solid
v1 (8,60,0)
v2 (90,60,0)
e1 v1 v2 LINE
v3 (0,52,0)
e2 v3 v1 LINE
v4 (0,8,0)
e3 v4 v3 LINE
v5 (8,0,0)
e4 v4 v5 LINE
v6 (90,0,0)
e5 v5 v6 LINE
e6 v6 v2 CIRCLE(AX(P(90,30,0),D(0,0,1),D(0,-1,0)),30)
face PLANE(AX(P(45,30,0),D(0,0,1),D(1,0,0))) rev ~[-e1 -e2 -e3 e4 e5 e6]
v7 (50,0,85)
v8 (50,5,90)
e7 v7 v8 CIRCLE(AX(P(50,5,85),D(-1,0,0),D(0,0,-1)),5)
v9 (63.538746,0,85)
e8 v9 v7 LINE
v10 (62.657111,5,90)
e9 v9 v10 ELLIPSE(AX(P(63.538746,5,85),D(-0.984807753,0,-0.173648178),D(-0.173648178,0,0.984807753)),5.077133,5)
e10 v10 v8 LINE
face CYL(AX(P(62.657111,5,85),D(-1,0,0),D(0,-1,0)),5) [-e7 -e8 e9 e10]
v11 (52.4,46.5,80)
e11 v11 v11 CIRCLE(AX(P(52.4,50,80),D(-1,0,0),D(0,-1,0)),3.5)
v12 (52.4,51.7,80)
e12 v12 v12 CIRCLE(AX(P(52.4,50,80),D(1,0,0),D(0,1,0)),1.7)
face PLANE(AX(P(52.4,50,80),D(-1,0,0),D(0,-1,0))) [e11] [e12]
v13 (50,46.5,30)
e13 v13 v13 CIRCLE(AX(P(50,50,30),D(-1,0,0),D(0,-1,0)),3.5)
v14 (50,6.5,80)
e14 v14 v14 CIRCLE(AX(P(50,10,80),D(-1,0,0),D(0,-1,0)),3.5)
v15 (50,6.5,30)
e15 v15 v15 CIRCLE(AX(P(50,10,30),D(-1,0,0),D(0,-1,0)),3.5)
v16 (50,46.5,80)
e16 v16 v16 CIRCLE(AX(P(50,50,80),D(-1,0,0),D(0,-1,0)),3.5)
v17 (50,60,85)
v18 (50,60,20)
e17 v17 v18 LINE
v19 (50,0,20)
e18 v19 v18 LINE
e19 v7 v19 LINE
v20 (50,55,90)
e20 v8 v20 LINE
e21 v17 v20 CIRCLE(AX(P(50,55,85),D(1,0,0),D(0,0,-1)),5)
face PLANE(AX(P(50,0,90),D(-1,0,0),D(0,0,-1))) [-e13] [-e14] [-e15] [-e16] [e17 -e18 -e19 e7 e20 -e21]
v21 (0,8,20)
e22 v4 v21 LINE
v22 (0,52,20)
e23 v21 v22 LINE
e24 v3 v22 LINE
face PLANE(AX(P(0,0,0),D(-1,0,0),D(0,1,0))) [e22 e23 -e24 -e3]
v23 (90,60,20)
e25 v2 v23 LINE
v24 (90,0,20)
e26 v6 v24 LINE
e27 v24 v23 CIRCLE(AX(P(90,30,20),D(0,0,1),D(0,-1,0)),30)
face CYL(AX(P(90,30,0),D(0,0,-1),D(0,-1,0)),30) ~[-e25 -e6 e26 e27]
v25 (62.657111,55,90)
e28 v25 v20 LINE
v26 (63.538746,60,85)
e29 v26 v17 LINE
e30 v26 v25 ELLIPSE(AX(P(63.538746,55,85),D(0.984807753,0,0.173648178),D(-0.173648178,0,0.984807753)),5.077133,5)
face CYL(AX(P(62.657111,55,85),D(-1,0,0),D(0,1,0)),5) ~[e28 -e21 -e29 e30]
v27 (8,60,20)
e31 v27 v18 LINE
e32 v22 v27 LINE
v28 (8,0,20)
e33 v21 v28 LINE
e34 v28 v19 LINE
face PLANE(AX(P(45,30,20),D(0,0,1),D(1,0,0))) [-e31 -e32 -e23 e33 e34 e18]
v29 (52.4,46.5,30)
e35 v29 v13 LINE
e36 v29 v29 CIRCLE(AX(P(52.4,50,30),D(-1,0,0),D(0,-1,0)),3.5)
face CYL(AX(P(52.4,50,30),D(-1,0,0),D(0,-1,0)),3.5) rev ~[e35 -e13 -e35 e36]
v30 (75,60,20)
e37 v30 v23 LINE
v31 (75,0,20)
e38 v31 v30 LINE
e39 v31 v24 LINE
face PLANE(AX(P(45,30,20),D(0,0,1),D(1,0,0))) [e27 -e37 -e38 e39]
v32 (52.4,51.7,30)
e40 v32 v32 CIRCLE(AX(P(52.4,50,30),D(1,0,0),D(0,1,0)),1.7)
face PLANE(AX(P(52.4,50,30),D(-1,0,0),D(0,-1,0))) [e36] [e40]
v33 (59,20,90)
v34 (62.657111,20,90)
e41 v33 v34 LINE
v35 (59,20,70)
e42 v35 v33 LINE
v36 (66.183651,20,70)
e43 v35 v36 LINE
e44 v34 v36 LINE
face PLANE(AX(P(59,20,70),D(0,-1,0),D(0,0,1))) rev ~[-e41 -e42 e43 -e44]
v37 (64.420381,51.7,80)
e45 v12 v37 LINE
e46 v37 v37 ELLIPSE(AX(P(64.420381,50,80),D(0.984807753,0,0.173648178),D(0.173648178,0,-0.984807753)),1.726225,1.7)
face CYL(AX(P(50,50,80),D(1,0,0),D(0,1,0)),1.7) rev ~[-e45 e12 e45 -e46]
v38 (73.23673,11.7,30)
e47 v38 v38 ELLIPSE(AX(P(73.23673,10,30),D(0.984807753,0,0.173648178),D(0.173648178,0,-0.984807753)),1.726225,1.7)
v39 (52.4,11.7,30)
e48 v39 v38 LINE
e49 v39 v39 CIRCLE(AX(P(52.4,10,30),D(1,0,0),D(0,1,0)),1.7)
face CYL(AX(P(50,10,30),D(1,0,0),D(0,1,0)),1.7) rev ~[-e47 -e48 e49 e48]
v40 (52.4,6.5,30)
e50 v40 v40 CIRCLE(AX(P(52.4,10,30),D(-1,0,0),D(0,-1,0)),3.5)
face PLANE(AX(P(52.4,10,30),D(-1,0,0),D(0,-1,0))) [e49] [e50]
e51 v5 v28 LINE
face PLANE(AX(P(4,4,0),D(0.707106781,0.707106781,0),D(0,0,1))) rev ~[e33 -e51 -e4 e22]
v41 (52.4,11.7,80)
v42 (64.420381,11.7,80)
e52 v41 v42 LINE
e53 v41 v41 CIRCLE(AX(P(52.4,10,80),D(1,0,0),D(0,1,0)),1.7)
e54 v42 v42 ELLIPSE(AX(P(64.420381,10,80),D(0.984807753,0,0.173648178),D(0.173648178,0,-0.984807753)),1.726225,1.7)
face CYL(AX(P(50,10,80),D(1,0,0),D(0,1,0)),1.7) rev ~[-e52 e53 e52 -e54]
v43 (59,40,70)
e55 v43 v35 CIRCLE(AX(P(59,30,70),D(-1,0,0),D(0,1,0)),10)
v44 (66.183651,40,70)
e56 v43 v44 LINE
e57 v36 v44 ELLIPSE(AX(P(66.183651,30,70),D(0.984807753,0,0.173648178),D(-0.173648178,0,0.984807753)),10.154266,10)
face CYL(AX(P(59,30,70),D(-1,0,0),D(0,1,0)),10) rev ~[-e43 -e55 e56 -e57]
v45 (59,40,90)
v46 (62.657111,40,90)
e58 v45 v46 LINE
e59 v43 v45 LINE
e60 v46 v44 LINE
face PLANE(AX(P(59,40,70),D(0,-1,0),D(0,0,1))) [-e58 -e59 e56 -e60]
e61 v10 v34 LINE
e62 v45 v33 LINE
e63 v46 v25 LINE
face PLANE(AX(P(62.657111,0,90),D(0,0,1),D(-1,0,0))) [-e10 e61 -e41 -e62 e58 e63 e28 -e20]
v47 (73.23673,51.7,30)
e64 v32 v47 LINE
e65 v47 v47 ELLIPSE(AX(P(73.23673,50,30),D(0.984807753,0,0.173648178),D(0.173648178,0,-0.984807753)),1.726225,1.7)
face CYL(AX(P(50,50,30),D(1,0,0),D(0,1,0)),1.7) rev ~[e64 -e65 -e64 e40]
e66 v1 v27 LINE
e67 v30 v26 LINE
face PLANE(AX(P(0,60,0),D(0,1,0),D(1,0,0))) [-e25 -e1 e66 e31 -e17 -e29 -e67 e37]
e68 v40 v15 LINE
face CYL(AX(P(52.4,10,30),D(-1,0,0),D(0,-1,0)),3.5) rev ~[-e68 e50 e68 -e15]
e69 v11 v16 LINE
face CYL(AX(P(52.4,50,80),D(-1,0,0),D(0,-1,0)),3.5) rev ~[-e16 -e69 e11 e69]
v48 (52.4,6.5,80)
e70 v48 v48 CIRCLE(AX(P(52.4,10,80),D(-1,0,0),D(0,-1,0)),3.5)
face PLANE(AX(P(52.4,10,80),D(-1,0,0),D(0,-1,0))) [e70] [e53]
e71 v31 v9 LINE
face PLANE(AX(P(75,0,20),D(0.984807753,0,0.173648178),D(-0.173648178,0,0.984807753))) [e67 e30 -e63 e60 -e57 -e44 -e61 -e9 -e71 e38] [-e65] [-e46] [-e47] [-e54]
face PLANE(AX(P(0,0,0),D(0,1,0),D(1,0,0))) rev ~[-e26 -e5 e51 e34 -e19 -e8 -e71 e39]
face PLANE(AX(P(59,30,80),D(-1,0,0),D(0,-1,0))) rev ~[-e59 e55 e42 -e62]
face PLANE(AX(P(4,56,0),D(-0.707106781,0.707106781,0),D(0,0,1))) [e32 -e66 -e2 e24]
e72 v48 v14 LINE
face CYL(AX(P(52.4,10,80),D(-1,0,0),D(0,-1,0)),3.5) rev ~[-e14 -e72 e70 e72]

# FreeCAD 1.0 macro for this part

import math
import FreeCAD as App
import Part
import Sketcher
Q = App.Units.Quantity


def edges_at(feature, points):
    """Names of the edges that pass closest to the given points."""
    edges = feature.Shape.Edges
    near = lambda p: min(range(len(edges)), key=lambda i: edges[i].distToShape(Part.Vertex(*p))[0])
    return sorted({f"Edge{near(p) + 1}" for p in points})

doc = App.newDocument("Part")
body = doc.addObject("PartDesign::Body", "Body")

# Sketch on XY plane
sketch1 = body.newObject("Sketcher::SketchObject", "Sketch")
sketch1.AttachmentSupport = (doc.getObject("XY_Plane"), [""])
sketch1.MapMode = "FlatFace"
sketch1.addGeometry(Part.LineSegment(App.Vector(0, 60, 0), App.Vector(0, 0, 0)), False)
sketch1.addGeometry(Part.LineSegment(App.Vector(0, 0, 0), App.Vector(90, 0, 0)), False)
sketch1.addGeometry(Part.ArcOfCircle(Part.Circle(App.Vector(90, 30, 0), App.Vector(0, 0, 1), 30), math.radians(-90), math.radians(90)), False)
sketch1.addGeometry(Part.LineSegment(App.Vector(90, 60, 0), App.Vector(0, 60, 0)), False)
sketch1.addConstraint(Sketcher.Constraint("Coincident", 0, 2, 1, 1))
sketch1.addConstraint(Sketcher.Constraint("Tangent", 1, 2, 2, 1))
sketch1.addConstraint(Sketcher.Constraint("Tangent", 2, 2, 3, 1))
sketch1.addConstraint(Sketcher.Constraint("Coincident", 3, 2, 0, 1))
sketch1.addConstraint(Sketcher.Constraint("Vertical", 0))
sketch1.addConstraint(Sketcher.Constraint("Horizontal", 1))
sketch1.addConstraint(Sketcher.Constraint("Horizontal", 3))
sketch1.addConstraint(Sketcher.Constraint("Coincident", 0, 2, -1, 1))
sketch1.addConstraint(Sketcher.Constraint("Radius", 2, Q("30 mm")))
sketch1.addConstraint(Sketcher.Constraint("DistanceX", 1, 1, 1, 2, Q("90 mm")))
pad1 = body.newObject("PartDesign::Pad", "Pad")
pad1.Profile = sketch1
pad1.Length = 20
doc.recompute()

chamfer = body.newObject("PartDesign::Chamfer", "Chamfer")
chamfer.Base = (pad1, edges_at(pad1, [(0, 0, 10), (0, 60, 10)]))
chamfer.Size = 8

# Sketch on XZ plane
sketch2 = body.newObject("Sketcher::SketchObject", "Sketch001")
sketch2.AttachmentSupport = (doc.getObject("XZ_Plane"), [""])
sketch2.MapMode = "FlatFace"
sketch2.addGeometry(Part.LineSegment(App.Vector(50, 90, 0), App.Vector(50, 20, 0)), False)
sketch2.addGeometry(Part.LineSegment(App.Vector(50, 20, 0), App.Vector(75, 20, 0)), False)
sketch2.addGeometry(Part.LineSegment(App.Vector(75, 20, 0), App.Vector(63, 90, 0)), False)
sketch2.addGeometry(Part.LineSegment(App.Vector(63, 90, 0), App.Vector(50, 90, 0)), False)
sketch2.addConstraint(Sketcher.Constraint("Coincident", 0, 2, 1, 1))
sketch2.addConstraint(Sketcher.Constraint("Coincident", 1, 2, 2, 1))
sketch2.addConstraint(Sketcher.Constraint("Coincident", 2, 2, 3, 1))
sketch2.addConstraint(Sketcher.Constraint("Coincident", 3, 2, 0, 1))
sketch2.addConstraint(Sketcher.Constraint("Vertical", 0))
sketch2.addConstraint(Sketcher.Constraint("Horizontal", 1))
sketch2.addConstraint(Sketcher.Constraint("Horizontal", 3))
sketch2.addConstraint(Sketcher.Constraint("DistanceX", 1, 1, 1, 2, Q("25 mm")))
sketch2.addConstraint(Sketcher.Constraint("DistanceY", 0, 2, 0, 1, Q("70 mm")))
sketch2.addConstraint(Sketcher.Constraint("Angle", 2, Q("100 deg")))
sketch2.addConstraint(Sketcher.Constraint("DistanceX", -1, 1, 0, 2, Q("50 mm")))
sketch2.addConstraint(Sketcher.Constraint("DistanceY", -1, 1, 0, 2, Q("20 mm")))
pad2 = body.newObject("PartDesign::Pad", "Pad001")
pad2.Profile = sketch2
pad2.Length = 60
pad2.Reversed = True
doc.recompute()

fillet = body.newObject("PartDesign::Fillet", "Fillet")
fillet.Base = (pad2, edges_at(pad2, [(56.329, 0, 90), (56.329, 60, 90)]))
fillet.Radius = 5

# Sketch on YZ plane
sketch3 = body.newObject("Sketcher::SketchObject", "Sketch002")
sketch3.AttachmentSupport = (doc.getObject("YZ_Plane"), [""])
sketch3.MapMode = "FlatFace"
sketch3.AttachmentOffset = App.Placement(App.Vector(0, 0, 50), App.Rotation())
sketch3.addGeometry(Part.Circle(App.Vector(50, 80, 0), App.Vector(0, 0, 1), 1.7), False)
sketch3.addGeometry(Part.Circle(App.Vector(50, 30, 0), App.Vector(0, 0, 1), 1.7), False)
sketch3.addGeometry(Part.Circle(App.Vector(10, 30, 0), App.Vector(0, 0, 1), 1.7), False)
sketch3.addGeometry(Part.Circle(App.Vector(10, 80, 0), App.Vector(0, 0, 1), 1.7), False)
sketch3.addConstraint(Sketcher.Constraint("Equal", 0, 1))
sketch3.addConstraint(Sketcher.Constraint("Equal", 1, 2))
sketch3.addConstraint(Sketcher.Constraint("Equal", 2, 3))
sketch3.addConstraint(Sketcher.Constraint("Horizontal", 1, 3, 2, 3))
sketch3.addConstraint(Sketcher.Constraint("Horizontal", 0, 3, 3, 3))
sketch3.addConstraint(Sketcher.Constraint("Vertical", 0, 3, 1, 3))
sketch3.addConstraint(Sketcher.Constraint("Vertical", 2, 3, 3, 3))
sketch3.addConstraint(Sketcher.Constraint("Diameter", 0, Q("3.4 mm")))
sketch3.addConstraint(Sketcher.Constraint("DistanceX", -1, 1, 0, 3, Q("50 mm")))
sketch3.addConstraint(Sketcher.Constraint("DistanceY", -1, 1, 0, 3, Q("80 mm")))
sketch3.addConstraint(Sketcher.Constraint("DistanceY", -1, 1, 1, 3, Q("30 mm")))
sketch3.addConstraint(Sketcher.Constraint("DistanceX", -1, 1, 2, 3, Q("10 mm")))
doc.recompute()
hole = body.newObject("PartDesign::Hole", "Hole")
hole.Profile = sketch3
hole.ThreadType = "None"
hole.Diameter = 3.4
hole.DepthType = "ThroughAll"
hole.HoleCutType = "Counterbore"
hole.HoleCutDiameter = 7
hole.HoleCutDepth = 2.4
hole.Reversed = True

# Sketch on YZ plane
sketch4 = body.newObject("Sketcher::SketchObject", "Sketch003")
sketch4.AttachmentSupport = (doc.getObject("YZ_Plane"), [""])
sketch4.MapMode = "FlatFace"
sketch4.AttachmentOffset = App.Placement(App.Vector(0, 0, 59), App.Rotation())
sketch4.addGeometry(Part.LineSegment(App.Vector(40, 90, 0), App.Vector(40, 70, 0)), False)
sketch4.addGeometry(Part.ArcOfCircle(Part.Circle(App.Vector(30, 70, 0), App.Vector(0, 0, 1), 10), math.radians(180), math.radians(360)), False)
sketch4.addGeometry(Part.LineSegment(App.Vector(20, 70, 0), App.Vector(20, 90, 0)), False)
sketch4.addGeometry(Part.LineSegment(App.Vector(20, 90, 0), App.Vector(40, 90, 0)), False)
sketch4.addConstraint(Sketcher.Constraint("Tangent", 0, 2, 1, 2))
sketch4.addConstraint(Sketcher.Constraint("Tangent", 1, 1, 2, 1))
sketch4.addConstraint(Sketcher.Constraint("Coincident", 2, 2, 3, 1))
sketch4.addConstraint(Sketcher.Constraint("Coincident", 3, 2, 0, 1))
sketch4.addConstraint(Sketcher.Constraint("Vertical", 0))
sketch4.addConstraint(Sketcher.Constraint("Vertical", 2))
sketch4.addConstraint(Sketcher.Constraint("Horizontal", 3))
sketch4.addConstraint(Sketcher.Constraint("Equal", 3, 0))
sketch4.addConstraint(Sketcher.Constraint("Radius", 1, Q("10 mm")))
sketch4.addConstraint(Sketcher.Constraint("DistanceX", -1, 1, 1, 3, Q("30 mm")))
sketch4.addConstraint(Sketcher.Constraint("DistanceY", -1, 1, 1, 3, Q("70 mm")))
pocket1 = body.newObject("PartDesign::Pocket", "Pocket")
pocket1.Profile = sketch4
pocket1.Type = "ThroughAll"
pocket1.Reversed = True

doc.recompute()
